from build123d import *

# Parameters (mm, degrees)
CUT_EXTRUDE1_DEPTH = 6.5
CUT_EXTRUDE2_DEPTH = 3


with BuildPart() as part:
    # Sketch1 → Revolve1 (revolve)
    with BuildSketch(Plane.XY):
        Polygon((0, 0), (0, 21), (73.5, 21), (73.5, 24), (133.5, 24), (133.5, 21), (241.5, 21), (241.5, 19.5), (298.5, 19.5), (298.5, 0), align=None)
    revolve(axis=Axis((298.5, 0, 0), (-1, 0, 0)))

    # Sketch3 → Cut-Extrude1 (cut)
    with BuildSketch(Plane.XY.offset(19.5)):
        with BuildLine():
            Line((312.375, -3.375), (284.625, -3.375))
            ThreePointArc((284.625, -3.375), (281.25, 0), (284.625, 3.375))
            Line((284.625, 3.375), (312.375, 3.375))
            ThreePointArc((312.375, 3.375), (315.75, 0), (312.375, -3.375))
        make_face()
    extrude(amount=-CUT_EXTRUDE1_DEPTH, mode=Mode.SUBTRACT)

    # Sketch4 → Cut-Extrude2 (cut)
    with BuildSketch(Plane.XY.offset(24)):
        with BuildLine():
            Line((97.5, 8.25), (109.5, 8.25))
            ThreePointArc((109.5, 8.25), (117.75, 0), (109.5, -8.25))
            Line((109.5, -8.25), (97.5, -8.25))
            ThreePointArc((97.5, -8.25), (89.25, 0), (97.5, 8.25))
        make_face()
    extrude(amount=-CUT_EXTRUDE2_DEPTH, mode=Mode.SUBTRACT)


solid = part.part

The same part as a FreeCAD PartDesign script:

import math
import FreeCAD as App
import Part
import Sketcher

doc = App.newDocument("Part")
body = doc.addObject("PartDesign::Body", "Body")

sketch1 = body.newObject("Sketcher::SketchObject", "Sketch")
sketch1.AttachmentSupport = (doc.getObject("XY_Plane"), [""])
sketch1.MapMode = "FlatFace"
sketch1.addGeometry([
    Part.LineSegment(App.Vector(0, 21, 0), App.Vector(0, 0, 0)),
    Part.LineSegment(App.Vector(0, 0, 0), App.Vector(298.5, 0, 0)),
    Part.LineSegment(App.Vector(298.5, 0, 0), App.Vector(298.5, 19.5, 0)),
    Part.LineSegment(App.Vector(298.5, 19.5, 0), App.Vector(241.5, 19.5, 0)),
    Part.LineSegment(App.Vector(241.5, 19.5, 0), App.Vector(241.5, 21, 0)),
    Part.LineSegment(App.Vector(241.5, 21, 0), App.Vector(133.5, 21, 0)),
    Part.LineSegment(App.Vector(133.5, 21, 0), App.Vector(133.5, 24, 0)),
    Part.LineSegment(App.Vector(133.5, 24, 0), App.Vector(73.5, 24, 0)),
    Part.LineSegment(App.Vector(73.5, 24, 0), App.Vector(73.5, 21, 0)),
    Part.LineSegment(App.Vector(73.5, 21, 0), App.Vector(0, 21, 0)),
], False)
sketch1.addConstraint([
    Sketcher.Constraint("Coincident", 0, 2, 1, 1),
    Sketcher.Constraint("Coincident", 1, 2, 2, 1),
    Sketcher.Constraint("Coincident", 2, 2, 3, 1),
    Sketcher.Constraint("Coincident", 3, 2, 4, 1),
    Sketcher.Constraint("Coincident", 4, 2, 5, 1),
    Sketcher.Constraint("Coincident", 5, 2, 6, 1),
    Sketcher.Constraint("Coincident", 6, 2, 7, 1),
    Sketcher.Constraint("Coincident", 7, 2, 8, 1),
    Sketcher.Constraint("Coincident", 8, 2, 9, 1),
    Sketcher.Constraint("Coincident", 9, 2, 0, 1),
    Sketcher.Constraint("Vertical", 0),
    Sketcher.Constraint("Horizontal", 1),
    Sketcher.Constraint("Vertical", 2),
    Sketcher.Constraint("Horizontal", 3),
    Sketcher.Constraint("Vertical", 4),
    Sketcher.Constraint("Horizontal", 5),
    Sketcher.Constraint("Vertical", 6),
    Sketcher.Constraint("Horizontal", 7),
    Sketcher.Constraint("Vertical", 8),
    Sketcher.Constraint("Horizontal", 9),
    Sketcher.Constraint("Coincident", 0, 2, -1, 1),
    Sketcher.Constraint("Horizontal", 5, 2, 8, 2),
    Sketcher.Constraint("DistanceX", 3, 2, 3, 1, 57.0),
    Sketcher.Constraint("DistanceX", 5, 2, 5, 1, 108.0),
    Sketcher.Constraint("DistanceX", 7, 2, 7, 1, 60.0),
    Sketcher.Constraint("DistanceY", 0, 2, 0, 1, 21.0),
    Sketcher.Constraint("DistanceY", 6, 1, 6, 2, 3.0),
    Sketcher.Constraint("DistanceX", 1, 1, 1, 2, 298.5),
    Sketcher.Constraint("DistanceY", 2, 1, 2, 2, 19.5),
])
revolution = body.newObject("PartDesign::Revolution", "Revolution")
revolution.Profile = sketch1
revolution.ReferenceAxis = (sketch1, ["H_Axis"])
revolution.Angle = 360

sketch2 = body.newObject("Sketcher::SketchObject", "Sketch001")
sketch2.AttachmentSupport = (doc.getObject("XY_Plane"), [""])
sketch2.MapMode = "FlatFace"
sketch2.AttachmentOffset = App.Placement(App.Vector(0, 0, 19.5), App.Rotation())
sketch2.addGeometry([
    Part.LineSegment(App.Vector(284.6, -3.4, 0), App.Vector(312.4, -3.4, 0)),
    Part.ArcOfCircle(Part.Circle(App.Vector(312.4, 0, 0), App.Vector(0, 0, 1), 3.4), math.radians(-90), math.radians(90)),
    Part.LineSegment(App.Vector(312.4, 3.4, 0), App.Vector(284.6, 3.4, 0)),
    Part.ArcOfCircle(Part.Circle(App.Vector(284.6, 0, 0), App.Vector(0, 0, 1), 3.4), math.radians(90), math.radians(270)),
], False)
sketch2.addConstraint([
    Sketcher.Constraint("Tangent", 0, 2, 1, 1),
    Sketcher.Constraint("Tangent", 1, 2, 2, 1),
    Sketcher.Constraint("Tangent", 2, 2, 3, 1),
    Sketcher.Constraint("Tangent", 3, 2, 0, 1),
    Sketcher.Constraint("Horizontal", 0),
    Sketcher.Constraint("Horizontal", 2),
    Sketcher.Constraint("PointOnObject", 1, 3, -1),
    Sketcher.Constraint("Radius", 1, 3.375),
    Sketcher.Constraint("DistanceX", 0, 1, 0, 2, 27.75),
    Sketcher.Constraint("DistanceX", -1, 1, 1, 3, 312.375),
])
pocket1 = body.newObject("PartDesign::Pocket", "Pocket")
pocket1.Profile = sketch2
pocket1.Length = 6.5

sketch3 = body.newObject("Sketcher::SketchObject", "Sketch002")
sketch3.AttachmentSupport = (doc.getObject("XY_Plane"), [""])
sketch3.MapMode = "FlatFace"
sketch3.AttachmentOffset = App.Placement(App.Vector(0, 0, 24), App.Rotation())
sketch3.addGeometry([
    Part.LineSegment(App.Vector(110, 8, 0), App.Vector(98, 8, 0)),
    Part.ArcOfCircle(Part.Circle(App.Vector(98, 0, 0), App.Vector(0, 0, 1), 8), math.radians(90), math.radians(270)),
    Part.LineSegment(App.Vector(98, -8, 0), App.Vector(110, -8, 0)),
    Part.ArcOfCircle(Part.Circle(App.Vector(110, 0, 0), App.Vector(0, 0, 1), 8), math.radians(-90), math.radians(90)),
], False)
sketch3.addConstraint([
    Sketcher.Constraint("Tangent", 0, 2, 1, 1),
    Sketcher.Constraint("Tangent", 1, 2, 2, 1),
    Sketcher.Constraint("Tangent", 2, 2, 3, 1),
    Sketcher.Constraint("Tangent", 3, 2, 0, 1),
    Sketcher.Constraint("Horizontal", 0),
    Sketcher.Constraint("Horizontal", 2),
    Sketcher.Constraint("PointOnObject", 1, 3, -1),
    Sketcher.Constraint("DistanceX", 0, 2, 0, 1, 12.0),
    Sketcher.Constraint("Radius", 1, 8.25),
    Sketcher.Constraint("DistanceX", -1, 1, 1, 3, 97.5),
])
pocket2 = body.newObject("PartDesign::Pocket", "Pocket001")
pocket2.Profile = sketch3
pocket2.Length = 3

doc.recompute()
